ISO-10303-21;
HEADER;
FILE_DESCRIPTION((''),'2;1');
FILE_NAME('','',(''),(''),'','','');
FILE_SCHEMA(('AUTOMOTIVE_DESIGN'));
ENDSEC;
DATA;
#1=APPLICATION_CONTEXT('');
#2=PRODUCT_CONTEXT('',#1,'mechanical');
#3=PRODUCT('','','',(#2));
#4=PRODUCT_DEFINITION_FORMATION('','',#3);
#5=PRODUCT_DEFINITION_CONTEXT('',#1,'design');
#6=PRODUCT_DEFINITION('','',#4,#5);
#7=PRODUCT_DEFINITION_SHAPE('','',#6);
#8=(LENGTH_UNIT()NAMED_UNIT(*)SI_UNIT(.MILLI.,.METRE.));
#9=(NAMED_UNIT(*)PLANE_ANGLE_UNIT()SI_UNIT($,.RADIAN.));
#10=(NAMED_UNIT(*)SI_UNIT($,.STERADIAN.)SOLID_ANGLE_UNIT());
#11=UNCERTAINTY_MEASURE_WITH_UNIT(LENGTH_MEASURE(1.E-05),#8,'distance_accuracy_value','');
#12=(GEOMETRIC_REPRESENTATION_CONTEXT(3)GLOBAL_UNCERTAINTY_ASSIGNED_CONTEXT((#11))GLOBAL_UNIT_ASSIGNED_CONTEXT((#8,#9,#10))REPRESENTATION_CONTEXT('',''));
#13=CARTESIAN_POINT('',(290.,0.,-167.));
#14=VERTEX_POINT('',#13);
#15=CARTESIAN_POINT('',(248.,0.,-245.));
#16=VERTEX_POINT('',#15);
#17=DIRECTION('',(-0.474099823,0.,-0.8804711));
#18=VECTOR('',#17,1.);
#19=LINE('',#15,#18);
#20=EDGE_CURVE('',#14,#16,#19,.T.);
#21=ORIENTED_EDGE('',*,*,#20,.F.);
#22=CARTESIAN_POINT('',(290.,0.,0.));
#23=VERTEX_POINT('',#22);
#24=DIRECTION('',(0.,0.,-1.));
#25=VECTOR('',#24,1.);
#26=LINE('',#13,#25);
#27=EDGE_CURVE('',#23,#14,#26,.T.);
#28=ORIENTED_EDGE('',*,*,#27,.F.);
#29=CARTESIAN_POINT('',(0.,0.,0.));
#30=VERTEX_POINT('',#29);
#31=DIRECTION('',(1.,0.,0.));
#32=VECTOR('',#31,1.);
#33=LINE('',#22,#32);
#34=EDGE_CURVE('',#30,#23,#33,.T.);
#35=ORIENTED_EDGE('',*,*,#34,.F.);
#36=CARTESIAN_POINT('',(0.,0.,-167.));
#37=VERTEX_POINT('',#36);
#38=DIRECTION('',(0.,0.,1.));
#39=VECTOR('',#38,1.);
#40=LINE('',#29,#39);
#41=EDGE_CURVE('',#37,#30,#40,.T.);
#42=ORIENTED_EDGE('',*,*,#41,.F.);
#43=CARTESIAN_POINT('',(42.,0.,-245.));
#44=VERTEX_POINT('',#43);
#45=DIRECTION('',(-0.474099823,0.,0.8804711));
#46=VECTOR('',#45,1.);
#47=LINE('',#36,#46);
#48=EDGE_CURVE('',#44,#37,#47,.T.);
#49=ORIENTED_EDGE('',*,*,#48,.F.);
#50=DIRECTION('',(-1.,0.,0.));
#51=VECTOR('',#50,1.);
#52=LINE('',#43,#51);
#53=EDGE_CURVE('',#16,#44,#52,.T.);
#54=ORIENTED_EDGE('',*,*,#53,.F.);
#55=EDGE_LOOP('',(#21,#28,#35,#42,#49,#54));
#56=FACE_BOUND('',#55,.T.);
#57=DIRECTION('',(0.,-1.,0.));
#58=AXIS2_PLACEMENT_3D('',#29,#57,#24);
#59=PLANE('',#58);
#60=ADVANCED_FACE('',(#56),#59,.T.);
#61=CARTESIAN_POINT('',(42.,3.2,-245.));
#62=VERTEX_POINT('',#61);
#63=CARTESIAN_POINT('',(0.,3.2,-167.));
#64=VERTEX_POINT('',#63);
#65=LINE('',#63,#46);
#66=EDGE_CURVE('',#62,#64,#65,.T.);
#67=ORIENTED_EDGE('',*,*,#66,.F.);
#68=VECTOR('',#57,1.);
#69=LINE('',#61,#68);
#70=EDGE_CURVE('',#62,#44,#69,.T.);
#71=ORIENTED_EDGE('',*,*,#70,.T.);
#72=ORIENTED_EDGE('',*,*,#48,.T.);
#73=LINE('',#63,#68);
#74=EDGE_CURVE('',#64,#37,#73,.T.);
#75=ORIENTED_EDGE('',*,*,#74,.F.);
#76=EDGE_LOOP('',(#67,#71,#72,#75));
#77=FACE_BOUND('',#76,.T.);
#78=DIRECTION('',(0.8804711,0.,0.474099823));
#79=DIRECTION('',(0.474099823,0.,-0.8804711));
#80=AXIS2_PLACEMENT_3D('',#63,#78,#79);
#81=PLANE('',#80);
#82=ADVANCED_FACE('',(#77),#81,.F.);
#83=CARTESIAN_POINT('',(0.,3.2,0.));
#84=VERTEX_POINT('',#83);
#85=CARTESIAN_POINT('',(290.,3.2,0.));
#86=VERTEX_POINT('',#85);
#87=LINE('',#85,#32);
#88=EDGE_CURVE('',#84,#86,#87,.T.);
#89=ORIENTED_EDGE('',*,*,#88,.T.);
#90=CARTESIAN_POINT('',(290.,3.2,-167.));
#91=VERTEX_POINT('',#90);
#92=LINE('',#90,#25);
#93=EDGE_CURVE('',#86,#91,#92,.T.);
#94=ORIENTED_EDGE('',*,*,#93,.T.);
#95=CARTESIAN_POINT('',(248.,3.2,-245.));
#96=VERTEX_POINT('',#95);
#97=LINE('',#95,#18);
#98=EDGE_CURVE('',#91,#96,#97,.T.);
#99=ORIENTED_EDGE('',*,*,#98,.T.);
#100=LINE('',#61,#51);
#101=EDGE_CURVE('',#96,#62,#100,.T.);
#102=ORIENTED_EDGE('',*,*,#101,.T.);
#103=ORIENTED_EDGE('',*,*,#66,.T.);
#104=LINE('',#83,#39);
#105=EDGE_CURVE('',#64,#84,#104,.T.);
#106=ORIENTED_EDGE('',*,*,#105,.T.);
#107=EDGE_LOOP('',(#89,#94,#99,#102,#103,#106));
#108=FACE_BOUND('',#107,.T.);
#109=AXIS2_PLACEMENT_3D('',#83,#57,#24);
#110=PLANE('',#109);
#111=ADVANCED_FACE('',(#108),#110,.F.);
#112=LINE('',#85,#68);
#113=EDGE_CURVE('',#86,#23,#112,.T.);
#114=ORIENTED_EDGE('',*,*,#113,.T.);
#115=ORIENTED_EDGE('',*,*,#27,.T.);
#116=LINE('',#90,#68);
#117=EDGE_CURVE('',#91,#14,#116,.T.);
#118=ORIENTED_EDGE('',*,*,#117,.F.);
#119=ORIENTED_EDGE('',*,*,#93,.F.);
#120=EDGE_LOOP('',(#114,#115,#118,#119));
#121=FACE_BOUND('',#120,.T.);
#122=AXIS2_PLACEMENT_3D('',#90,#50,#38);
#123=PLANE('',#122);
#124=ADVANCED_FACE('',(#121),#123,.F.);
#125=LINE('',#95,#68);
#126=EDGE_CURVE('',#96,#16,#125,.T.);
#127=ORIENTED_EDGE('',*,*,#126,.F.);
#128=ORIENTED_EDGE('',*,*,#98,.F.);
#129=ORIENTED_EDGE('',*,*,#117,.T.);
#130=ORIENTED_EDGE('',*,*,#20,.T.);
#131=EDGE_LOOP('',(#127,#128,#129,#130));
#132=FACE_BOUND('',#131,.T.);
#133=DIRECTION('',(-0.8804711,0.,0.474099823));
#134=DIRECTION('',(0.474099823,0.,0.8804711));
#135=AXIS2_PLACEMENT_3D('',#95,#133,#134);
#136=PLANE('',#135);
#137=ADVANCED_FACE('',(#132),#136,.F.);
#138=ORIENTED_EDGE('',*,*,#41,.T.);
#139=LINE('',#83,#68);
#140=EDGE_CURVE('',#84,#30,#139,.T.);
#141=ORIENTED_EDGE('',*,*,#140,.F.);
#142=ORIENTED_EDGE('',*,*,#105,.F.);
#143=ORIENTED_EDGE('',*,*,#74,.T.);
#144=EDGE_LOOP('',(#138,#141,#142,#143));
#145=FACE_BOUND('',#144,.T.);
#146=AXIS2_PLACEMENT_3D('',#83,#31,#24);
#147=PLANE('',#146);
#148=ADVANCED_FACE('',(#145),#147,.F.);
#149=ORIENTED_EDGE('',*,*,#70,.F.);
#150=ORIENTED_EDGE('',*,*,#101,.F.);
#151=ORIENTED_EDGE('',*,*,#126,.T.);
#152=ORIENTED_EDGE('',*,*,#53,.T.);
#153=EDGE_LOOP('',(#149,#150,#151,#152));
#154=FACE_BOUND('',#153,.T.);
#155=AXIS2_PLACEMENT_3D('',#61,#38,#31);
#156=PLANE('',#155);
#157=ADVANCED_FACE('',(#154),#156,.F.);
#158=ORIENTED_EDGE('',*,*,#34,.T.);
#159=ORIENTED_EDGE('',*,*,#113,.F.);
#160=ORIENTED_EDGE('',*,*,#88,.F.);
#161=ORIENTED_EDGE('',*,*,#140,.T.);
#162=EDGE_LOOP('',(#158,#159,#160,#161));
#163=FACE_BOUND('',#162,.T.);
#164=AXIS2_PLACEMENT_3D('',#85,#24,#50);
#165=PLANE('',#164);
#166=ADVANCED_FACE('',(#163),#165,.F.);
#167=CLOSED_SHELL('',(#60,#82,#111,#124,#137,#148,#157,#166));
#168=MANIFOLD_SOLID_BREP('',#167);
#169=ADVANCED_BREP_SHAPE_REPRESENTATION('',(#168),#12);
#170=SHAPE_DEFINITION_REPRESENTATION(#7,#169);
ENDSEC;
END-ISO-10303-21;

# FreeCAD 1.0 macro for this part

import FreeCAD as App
import Part
import Sketcher

V = App.Vector
Q = App.Units.Quantity

doc = App.newDocument("Part")
body = doc.addObject("PartDesign::Body", "Body")

# Sketch on XZ plane
sketch1 = doc.addObject("Sketcher::SketchObject", "Sketch")
body.addObject(sketch1)
sketch1.AttachmentSupport = (doc.XZ_Plane, [""])
sketch1.MapMode = "FlatFace"
sketch1.addGeometry(Part.LineSegment(V(0, -167, 0), V(0, 0, 0)), False)
sketch1.addGeometry(Part.LineSegment(V(0, 0, 0), V(290, 0, 0)), False)
sketch1.addGeometry(Part.LineSegment(V(290, 0, 0), V(290, -167, 0)), False)
sketch1.addGeometry(Part.LineSegment(V(290, -167, 0), V(248, -245, 0)), False)
sketch1.addGeometry(Part.LineSegment(V(248, -245, 0), V(42, -245, 0)), False)
sketch1.addGeometry(Part.LineSegment(V(42, -245, 0), V(0, -167, 0)), False)
sketch1.addConstraint(Sketcher.Constraint("Coincident", 0, 2, 1, 1))
sketch1.addConstraint(Sketcher.Constraint("Coincident", 1, 2, 2, 1))
sketch1.addConstraint(Sketcher.Constraint("Coincident", 2, 2, 3, 1))
sketch1.addConstraint(Sketcher.Constraint("Coincident", 3, 2, 4, 1))
sketch1.addConstraint(Sketcher.Constraint("Coincident", 4, 2, 5, 1))
sketch1.addConstraint(Sketcher.Constraint("Coincident", 5, 2, 0, 1))
sketch1.addConstraint(Sketcher.Constraint("Vertical", 0))
sketch1.addConstraint(Sketcher.Constraint("Horizontal", 1))
sketch1.addConstraint(Sketcher.Constraint("Vertical", 2))
sketch1.addConstraint(Sketcher.Constraint("Horizontal", 4))
sketch1.addConstraint(Sketcher.Constraint("Coincident", 0, 2, -1, 1))
sketch1.addConstraint(Sketcher.Constraint("Horizontal", 2, 2, 5, 2))
sketch1.addConstraint(Sketcher.Constraint("Equal", 3, 5))
sketch1.addConstraint(Sketcher.Constraint("DistanceX", 1, 1, 1, 2, Q("290 mm")))
sketch1.addConstraint(Sketcher.Constraint("DistanceX", 4, 2, 4, 1, Q("206 mm")))
sketch1.addConstraint(Sketcher.Constraint("DistanceY", 0, 1, 0, 2, Q("167 mm")))
sketch1.addConstraint(Sketcher.Constraint("DistanceY", 3, 2, -1, 1, Q("245 mm")))
pad1 = doc.addObject("PartDesign::Pad", "Pad")
body.addObject(pad1)
pad1.Profile = sketch1
pad1.Length = 3.2
pad1.Reversed = True

doc.recompute()
